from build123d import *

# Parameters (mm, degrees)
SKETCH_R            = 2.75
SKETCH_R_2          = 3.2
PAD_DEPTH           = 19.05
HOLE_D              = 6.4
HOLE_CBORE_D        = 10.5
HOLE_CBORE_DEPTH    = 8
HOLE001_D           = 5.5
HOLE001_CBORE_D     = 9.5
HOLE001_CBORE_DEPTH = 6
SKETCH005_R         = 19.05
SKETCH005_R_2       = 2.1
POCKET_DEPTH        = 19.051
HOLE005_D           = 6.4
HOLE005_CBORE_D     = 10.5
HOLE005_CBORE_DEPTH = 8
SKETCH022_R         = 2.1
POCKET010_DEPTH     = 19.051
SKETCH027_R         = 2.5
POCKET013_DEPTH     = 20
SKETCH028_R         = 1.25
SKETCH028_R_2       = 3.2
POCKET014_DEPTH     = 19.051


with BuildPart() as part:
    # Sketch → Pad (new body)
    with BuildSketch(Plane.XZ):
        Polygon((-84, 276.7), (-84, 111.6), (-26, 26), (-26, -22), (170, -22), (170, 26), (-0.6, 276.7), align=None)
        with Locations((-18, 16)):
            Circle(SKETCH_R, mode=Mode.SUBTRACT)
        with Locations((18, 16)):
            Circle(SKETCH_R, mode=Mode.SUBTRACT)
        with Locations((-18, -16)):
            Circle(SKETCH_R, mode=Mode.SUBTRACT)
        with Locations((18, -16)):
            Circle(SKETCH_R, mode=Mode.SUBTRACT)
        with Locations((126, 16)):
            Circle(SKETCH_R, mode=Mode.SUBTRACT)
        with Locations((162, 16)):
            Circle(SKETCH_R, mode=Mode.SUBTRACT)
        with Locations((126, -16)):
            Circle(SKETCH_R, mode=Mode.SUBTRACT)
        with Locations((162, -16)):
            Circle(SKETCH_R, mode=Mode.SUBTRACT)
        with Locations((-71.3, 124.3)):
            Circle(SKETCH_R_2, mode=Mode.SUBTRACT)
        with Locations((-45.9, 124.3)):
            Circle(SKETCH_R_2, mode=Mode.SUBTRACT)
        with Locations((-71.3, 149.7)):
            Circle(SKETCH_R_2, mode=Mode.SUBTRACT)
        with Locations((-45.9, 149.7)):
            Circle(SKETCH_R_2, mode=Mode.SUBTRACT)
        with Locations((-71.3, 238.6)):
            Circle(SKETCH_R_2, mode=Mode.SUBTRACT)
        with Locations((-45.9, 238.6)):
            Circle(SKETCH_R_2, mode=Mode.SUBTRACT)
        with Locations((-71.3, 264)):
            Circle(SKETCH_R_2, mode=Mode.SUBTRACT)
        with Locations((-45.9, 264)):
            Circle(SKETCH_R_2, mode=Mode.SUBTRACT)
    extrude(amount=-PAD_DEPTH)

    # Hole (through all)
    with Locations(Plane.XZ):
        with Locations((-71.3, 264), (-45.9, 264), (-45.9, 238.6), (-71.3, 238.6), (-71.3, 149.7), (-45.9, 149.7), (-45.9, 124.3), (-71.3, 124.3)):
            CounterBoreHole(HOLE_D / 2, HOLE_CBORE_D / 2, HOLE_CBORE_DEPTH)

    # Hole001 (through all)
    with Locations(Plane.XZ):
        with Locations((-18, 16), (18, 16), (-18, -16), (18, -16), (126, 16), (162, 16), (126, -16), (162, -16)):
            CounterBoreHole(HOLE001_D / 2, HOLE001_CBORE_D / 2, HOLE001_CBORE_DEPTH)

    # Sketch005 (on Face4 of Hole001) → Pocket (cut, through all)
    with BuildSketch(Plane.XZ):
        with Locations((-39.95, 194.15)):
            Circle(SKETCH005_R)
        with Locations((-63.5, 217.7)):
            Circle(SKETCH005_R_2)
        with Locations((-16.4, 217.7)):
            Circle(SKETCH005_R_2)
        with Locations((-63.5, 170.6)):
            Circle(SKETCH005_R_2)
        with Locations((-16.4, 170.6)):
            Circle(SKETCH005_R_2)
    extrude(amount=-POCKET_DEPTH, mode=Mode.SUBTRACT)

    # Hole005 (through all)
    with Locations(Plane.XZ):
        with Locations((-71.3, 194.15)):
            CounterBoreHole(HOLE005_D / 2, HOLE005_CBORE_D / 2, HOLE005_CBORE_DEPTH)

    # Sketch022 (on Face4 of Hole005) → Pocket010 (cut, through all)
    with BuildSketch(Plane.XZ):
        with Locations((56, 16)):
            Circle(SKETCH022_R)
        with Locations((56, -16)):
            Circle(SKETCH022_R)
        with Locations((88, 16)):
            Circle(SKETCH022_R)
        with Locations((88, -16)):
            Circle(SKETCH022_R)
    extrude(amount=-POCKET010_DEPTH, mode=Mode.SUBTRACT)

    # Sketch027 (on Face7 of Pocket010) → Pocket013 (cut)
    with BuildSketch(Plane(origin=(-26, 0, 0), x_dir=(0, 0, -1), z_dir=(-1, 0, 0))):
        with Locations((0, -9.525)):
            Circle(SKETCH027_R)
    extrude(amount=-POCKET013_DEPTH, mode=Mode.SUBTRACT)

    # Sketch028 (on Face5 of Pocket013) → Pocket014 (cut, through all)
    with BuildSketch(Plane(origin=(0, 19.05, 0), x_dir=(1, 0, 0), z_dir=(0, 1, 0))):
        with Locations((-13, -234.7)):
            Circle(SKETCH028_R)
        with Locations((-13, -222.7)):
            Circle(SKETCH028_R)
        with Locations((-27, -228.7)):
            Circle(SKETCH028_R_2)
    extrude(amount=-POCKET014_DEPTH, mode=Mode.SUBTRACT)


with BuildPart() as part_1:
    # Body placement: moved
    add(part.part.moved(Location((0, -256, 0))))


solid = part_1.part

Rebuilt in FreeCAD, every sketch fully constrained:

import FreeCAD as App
import Part
import Sketcher
Q = App.Units.Quantity

doc = App.newDocument("Part")
body = doc.addObject("PartDesign::Body", "Body")

# Sketch on XZ plane
sketch1 = body.newObject("Sketcher::SketchObject", "Sketch")
sketch1.AttachmentSupport = (doc.getObject("XZ_Plane"), [""])
sketch1.MapMode = "FlatFace"
sketch1.addGeometry(Part.LineSegment(App.Vector(-84, 276.7, 0), App.Vector(-84, 111.6, 0)), False)
sketch1.addGeometry(Part.LineSegment(App.Vector(-84, 111.6, 0), App.Vector(-26, 26, 0)), False)
sketch1.addGeometry(Part.LineSegment(App.Vector(-26, 26, 0), App.Vector(-26, -22, 0)), False)
sketch1.addGeometry(Part.LineSegment(App.Vector(-26, -22, 0), App.Vector(170, -22, 0)), False)
sketch1.addGeometry(Part.LineSegment(App.Vector(170, -22, 0), App.Vector(170, 26, 0)), False)
sketch1.addGeometry(Part.LineSegment(App.Vector(170, 26, 0), App.Vector(-0.6, 276.7, 0)), False)
sketch1.addGeometry(Part.LineSegment(App.Vector(-0.6, 276.7, 0), App.Vector(-84, 276.7, 0)), False)
sketch1.addGeometry(Part.Circle(App.Vector(-18, -16, 0), App.Vector(0, 0, 1), 2.8), False)
sketch1.addGeometry(Part.Circle(App.Vector(-18, 16, 0), App.Vector(0, 0, 1), 2.8), False)
sketch1.addGeometry(Part.Circle(App.Vector(18, -16, 0), App.Vector(0, 0, 1), 2.8), False)
sketch1.addGeometry(Part.Circle(App.Vector(18, 16, 0), App.Vector(0, 0, 1), 2.8), False)
sketch1.addGeometry(Part.Circle(App.Vector(126, -16, 0), App.Vector(0, 0, 1), 2.8), False)
sketch1.addGeometry(Part.Circle(App.Vector(126, 16, 0), App.Vector(0, 0, 1), 2.8), False)
sketch1.addGeometry(Part.Circle(App.Vector(162, -16, 0), App.Vector(0, 0, 1), 2.8), False)
sketch1.addGeometry(Part.Circle(App.Vector(162, 16, 0), App.Vector(0, 0, 1), 2.8), False)
sketch1.addGeometry(Part.Circle(App.Vector(-71.3, 124.3, 0), App.Vector(0, 0, 1), 3.2), False)
sketch1.addGeometry(Part.Circle(App.Vector(-45.9, 124.3, 0), App.Vector(0, 0, 1), 3.2), False)
sketch1.addGeometry(Part.Circle(App.Vector(-71.3, 149.7, 0), App.Vector(0, 0, 1), 3.2), False)
sketch1.addGeometry(Part.Circle(App.Vector(-45.9, 149.7, 0), App.Vector(0, 0, 1), 3.2), False)
sketch1.addGeometry(Part.Circle(App.Vector(-71.3, 238.6, 0), App.Vector(0, 0, 1), 3.2), False)
sketch1.addGeometry(Part.Circle(App.Vector(-45.9, 238.6, 0), App.Vector(0, 0, 1), 3.2), False)
sketch1.addGeometry(Part.Circle(App.Vector(-71.3, 264, 0), App.Vector(0, 0, 1), 3.2), False)
sketch1.addGeometry(Part.Circle(App.Vector(-45.9, 264, 0), App.Vector(0, 0, 1), 3.2), False)
sketch1.addConstraint(Sketcher.Constraint("Coincident", 0, 2, 1, 1))
sketch1.addConstraint(Sketcher.Constraint("Coincident", 1, 2, 2, 1))
sketch1.addConstraint(Sketcher.Constraint("Coincident", 2, 2, 3, 1))
sketch1.addConstraint(Sketcher.Constraint("Coincident", 3, 2, 4, 1))
sketch1.addConstraint(Sketcher.Constraint("Coincident", 4, 2, 5, 1))
sketch1.addConstraint(Sketcher.Constraint("Coincident", 5, 2, 6, 1))
sketch1.addConstraint(Sketcher.Constraint("Coincident", 6, 2, 0, 1))
sketch1.addConstraint(Sketcher.Constraint("Vertical", 0))
sketch1.addConstraint(Sketcher.Constraint("Vertical", 2))
sketch1.addConstraint(Sketcher.Constraint("Horizontal", 3))
sketch1.addConstraint(Sketcher.Constraint("Vertical", 4))
sketch1.addConstraint(Sketcher.Constraint("Horizontal", 6))
sketch1.addConstraint(Sketcher.Constraint("Equal", 7, 8))
sketch1.addConstraint(Sketcher.Constraint("Equal", 8, 9))
sketch1.addConstraint(Sketcher.Constraint("Equal", 9, 10))
sketch1.addConstraint(Sketcher.Constraint("Equal", 10, 11))
sketch1.addConstraint(Sketcher.Constraint("Equal", 11, 12))
sketch1.addConstraint(Sketcher.Constraint("Equal", 12, 13))
sketch1.addConstraint(Sketcher.Constraint("Equal", 13, 14))
sketch1.addConstraint(Sketcher.Constraint("Equal", 15, 16))
sketch1.addConstraint(Sketcher.Constraint("Equal", 16, 17))
sketch1.addConstraint(Sketcher.Constraint("Equal", 17, 18))
sketch1.addConstraint(Sketcher.Constraint("Equal", 18, 19))
sketch1.addConstraint(Sketcher.Constraint("Equal", 19, 20))
sketch1.addConstraint(Sketcher.Constraint("Equal", 20, 21))
sketch1.addConstraint(Sketcher.Constraint("Equal", 21, 22))
sketch1.addConstraint(Sketcher.Constraint("Symmetric", 8, 3, 9, 3, -1, 1))
sketch1.addConstraint(Sketcher.Constraint("Symmetric", 7, 3, 10, 3, -1, 1))
sketch1.addConstraint(Sketcher.Constraint("Symmetric", 7, 3, 9, 3, -2))
sketch1.addConstraint(Sketcher.Constraint("Symmetric", 11, 3, 12, 3, -1))
sketch1.addConstraint(Sketcher.Constraint("Symmetric", 13, 3, 14, 3, -1))
sketch1.addConstraint(Sketcher.Constraint("Horizontal", 9, 3, 11, 3))
sketch1.addConstraint(Sketcher.Constraint("Horizontal", 11, 3, 13, 3))
sketch1.addConstraint(Sketcher.Constraint("Horizontal", 15, 3, 16, 3))
sketch1.addConstraint(Sketcher.Constraint("Horizontal", 17, 3, 18, 3))
sketch1.addConstraint(Sketcher.Constraint("Horizontal", 19, 3, 20, 3))
sketch1.addConstraint(Sketcher.Constraint("Horizontal", 21, 3, 22, 3))
sketch1.addConstraint(Sketcher.Constraint("Horizontal", 1, 2, 4, 2))
sketch1.addConstraint(Sketcher.Constraint("Vertical", 15, 3, 17, 3))
sketch1.addConstraint(Sketcher.Constraint("Vertical", 16, 3, 18, 3))
sketch1.addConstraint(Sketcher.Constraint("Vertical", 17, 3, 19, 3))
sketch1.addConstraint(Sketcher.Constraint("Vertical", 18, 3, 20, 3))
sketch1.addConstraint(Sketcher.Constraint("Vertical", 19, 3, 21, 3))
sketch1.addConstraint(Sketcher.Constraint("Vertical", 20, 3, 22, 3))
sketch1.addConstraint(Sketcher.Constraint("Diameter", 7, Q("5.5 mm")))
sketch1.addConstraint(Sketcher.Constraint("Diameter", 15, Q("6.4 mm")))
sketch1.addConstraint(Sketcher.Constraint("DistanceX", 3, 1, 3, 2, Q("196 mm")))
sketch1.addConstraint(Sketcher.Constraint("DistanceY", 2, 2, 2, 1, Q("48 mm")))
sketch1.addConstraint(Sketcher.Constraint("DistanceX", 6, 2, 6, 1, Q("83.4 mm")))
sketch1.addConstraint(Sketcher.Constraint("DistanceY", 0, 2, 0, 1, Q("165.1 mm")))
sketch1.addConstraint(Sketcher.Constraint("DistanceX", 7, 3, -1, 1, Q("18 mm")))
sketch1.addConstraint(Sketcher.Constraint("DistanceY", 7, 3, -1, 1, Q("16 mm")))
sketch1.addConstraint(Sketcher.Constraint("DistanceX", -1, 1, 11, 3, Q("126 mm")))
sketch1.addConstraint(Sketcher.Constraint("DistanceX", -1, 1, 13, 3, Q("162 mm")))
sketch1.addConstraint(Sketcher.Constraint("DistanceY", -1, 1, 21, 3, Q("264 mm")))
sketch1.addConstraint(Sketcher.Constraint("DistanceX", 0, 2, -1, 1, Q("84 mm")))
sketch1.addConstraint(Sketcher.Constraint("DistanceX", 1, 2, -1, 1, Q("26 mm")))
sketch1.addConstraint(Sketcher.Constraint("DistanceY", -1, 1, 1, 2, Q("26 mm")))
sketch1.addConstraint(Sketcher.Constraint("DistanceY", 18, 3, 5, 2, Q("127 mm")))
sketch1.addConstraint(Sketcher.Constraint("DistanceX", 15, 3, -1, 1, Q("71.3 mm")))
sketch1.addConstraint(Sketcher.Constraint("DistanceY", -1, 1, 15, 3, Q("124.3 mm")))
sketch1.addConstraint(Sketcher.Constraint("DistanceX", 16, 3, -1, 1, Q("45.9 mm")))
sketch1.addConstraint(Sketcher.Constraint("DistanceY", -1, 1, 17, 3, Q("149.7 mm")))
sketch1.addConstraint(Sketcher.Constraint("DistanceY", -1, 1, 19, 3, Q("238.6 mm")))
pad1 = body.newObject("PartDesign::Pad", "Pad")
pad1.Profile = sketch1
pad1.Length = 19.05
pad1.Reversed = True

# Sketch on XZ plane
sketch2 = body.newObject("Sketcher::SketchObject", "Sketch001")
sketch2.AttachmentSupport = (doc.getObject("XZ_Plane"), [""])
sketch2.MapMode = "FlatFace"
sketch2.addGeometry(Part.Circle(App.Vector(-71.3, 264, 0), App.Vector(0, 0, 1), 3.2), False)
sketch2.addGeometry(Part.Circle(App.Vector(-45.9, 264, 0), App.Vector(0, 0, 1), 3.2), False)
sketch2.addGeometry(Part.Circle(App.Vector(-45.9, 238.6, 0), App.Vector(0, 0, 1), 3.2), False)
sketch2.addGeometry(Part.Circle(App.Vector(-71.3, 238.6, 0), App.Vector(0, 0, 1), 3.2), False)
sketch2.addGeometry(Part.Circle(App.Vector(-71.3, 149.7, 0), App.Vector(0, 0, 1), 3.2), False)
sketch2.addGeometry(Part.Circle(App.Vector(-45.9, 149.7, 0), App.Vector(0, 0, 1), 3.2), False)
sketch2.addGeometry(Part.Circle(App.Vector(-45.9, 124.3, 0), App.Vector(0, 0, 1), 3.2), False)
sketch2.addGeometry(Part.Circle(App.Vector(-71.3, 124.3, 0), App.Vector(0, 0, 1), 3.2), False)
sketch2.addConstraint(Sketcher.Constraint("Equal", 0, 1))
sketch2.addConstraint(Sketcher.Constraint("Equal", 1, 2))
sketch2.addConstraint(Sketcher.Constraint("Equal", 2, 3))
sketch2.addConstraint(Sketcher.Constraint("Equal", 3, 4))
sketch2.addConstraint(Sketcher.Constraint("Equal", 4, 5))
sketch2.addConstraint(Sketcher.Constraint("Equal", 5, 6))
sketch2.addConstraint(Sketcher.Constraint("Equal", 6, 7))
sketch2.addConstraint(Sketcher.Constraint("Horizontal", 0, 3, 1, 3))
sketch2.addConstraint(Sketcher.Constraint("Horizontal", 2, 3, 3, 3))
sketch2.addConstraint(Sketcher.Constraint("Horizontal", 4, 3, 5, 3))
sketch2.addConstraint(Sketcher.Constraint("Horizontal", 6, 3, 7, 3))
sketch2.addConstraint(Sketcher.Constraint("Vertical", 1, 3, 2, 3))
sketch2.addConstraint(Sketcher.Constraint("Vertical", 0, 3, 3, 3))
sketch2.addConstraint(Sketcher.Constraint("Vertical", 3, 3, 4, 3))
sketch2.addConstraint(Sketcher.Constraint("Vertical", 2, 3, 5, 3))
sketch2.addConstraint(Sketcher.Constraint("Vertical", 5, 3, 6, 3))
sketch2.addConstraint(Sketcher.Constraint("Vertical", 4, 3, 7, 3))
sketch2.addConstraint(Sketcher.Constraint("Diameter", 0, Q("6.4 mm")))
sketch2.addConstraint(Sketcher.Constraint("DistanceY", -1, 1, 0, 3, Q("264 mm")))
sketch2.addConstraint(Sketcher.Constraint("DistanceX", 0, 3, -1, 1, Q("71.3 mm")))
sketch2.addConstraint(Sketcher.Constraint("DistanceX", 1, 3, -1, 1, Q("45.9 mm")))
sketch2.addConstraint(Sketcher.Constraint("DistanceY", -1, 1, 2, 3, Q("238.6 mm")))
sketch2.addConstraint(Sketcher.Constraint("DistanceY", -1, 1, 4, 3, Q("149.7 mm")))
sketch2.addConstraint(Sketcher.Constraint("DistanceY", -1, 1, 6, 3, Q("124.3 mm")))
doc.recompute()
hole = body.newObject("PartDesign::Hole", "Hole")
hole.Profile = sketch2
hole.ThreadType = "None"
hole.Diameter = 6.4
hole.DepthType = "ThroughAll"
hole.HoleCutType = "Counterbore"
hole.HoleCutDiameter = 10.5
hole.HoleCutDepth = 8

# Sketch on XZ plane
sketch3 = body.newObject("Sketcher::SketchObject", "Sketch002")
sketch3.AttachmentSupport = (doc.getObject("XZ_Plane"), [""])
sketch3.MapMode = "FlatFace"
sketch3.addGeometry(Part.Circle(App.Vector(-18, 16, 0), App.Vector(0, 0, 1), 2.8), False)
sketch3.addGeometry(Part.Circle(App.Vector(18, 16, 0), App.Vector(0, 0, 1), 2.8), False)
sketch3.addGeometry(Part.Circle(App.Vector(-18, -16, 0), App.Vector(0, 0, 1), 2.8), False)
sketch3.addGeometry(Part.Circle(App.Vector(18, -16, 0), App.Vector(0, 0, 1), 2.8), False)
sketch3.addGeometry(Part.Circle(App.Vector(126, 16, 0), App.Vector(0, 0, 1), 2.8), False)
sketch3.addGeometry(Part.Circle(App.Vector(162, 16, 0), App.Vector(0, 0, 1), 2.8), False)
sketch3.addGeometry(Part.Circle(App.Vector(126, -16, 0), App.Vector(0, 0, 1), 2.8), False)
sketch3.addGeometry(Part.Circle(App.Vector(162, -16, 0), App.Vector(0, 0, 1), 2.8), False)
sketch3.addConstraint(Sketcher.Constraint("Equal", 0, 1))
sketch3.addConstraint(Sketcher.Constraint("Equal", 1, 2))
sketch3.addConstraint(Sketcher.Constraint("Equal", 2, 3))
sketch3.addConstraint(Sketcher.Constraint("Equal", 3, 4))
sketch3.addConstraint(Sketcher.Constraint("Equal", 4, 5))
sketch3.addConstraint(Sketcher.Constraint("Equal", 5, 6))
sketch3.addConstraint(Sketcher.Constraint("Equal", 6, 7))
sketch3.addConstraint(Sketcher.Constraint("Symmetric", 1, 3, 2, 3, -1, 1))
sketch3.addConstraint(Sketcher.Constraint("Symmetric", 0, 3, 3, 3, -1, 1))
sketch3.addConstraint(Sketcher.Constraint("Symmetric", 0, 3, 1, 3, -2))
sketch3.addConstraint(Sketcher.Constraint("Symmetric", 4, 3, 6, 3, -1))
sketch3.addConstraint(Sketcher.Constraint("Symmetric", 5, 3, 7, 3, -1))
sketch3.addConstraint(Sketcher.Constraint("Horizontal", 1, 3, 4, 3))
sketch3.addConstraint(Sketcher.Constraint("Horizontal", 4, 3, 5, 3))
sketch3.addConstraint(Sketcher.Constraint("Diameter", 0, Q("5.5 mm")))
sketch3.addConstraint(Sketcher.Constraint("DistanceX", 0, 3, -1, 1, Q("18 mm")))
sketch3.addConstraint(Sketcher.Constraint("DistanceY", -1, 1, 0, 3, Q("16 mm")))
sketch3.addConstraint(Sketcher.Constraint("DistanceX", -1, 1, 4, 3, Q("126 mm")))
sketch3.addConstraint(Sketcher.Constraint("DistanceX", -1, 1, 5, 3, Q("162 mm")))
doc.recompute()
hole2 = body.newObject("PartDesign::Hole", "Hole001")
hole2.Profile = sketch3
hole2.ThreadType = "None"
hole2.Diameter = 5.5
hole2.DepthType = "ThroughAll"
hole2.HoleCutType = "Counterbore"
hole2.HoleCutDiameter = 9.5
hole2.HoleCutDepth = 6

# Sketch on XZ plane
sketch4 = body.newObject("Sketcher::SketchObject", "Sketch003")
sketch4.AttachmentSupport = (doc.getObject("XZ_Plane"), [""])
sketch4.MapMode = "FlatFace"
sketch4.addGeometry(Part.Circle(App.Vector(-40, 194.2, 0), App.Vector(0, 0, 1), 19.1), False)
sketch4.addGeometry(Part.Circle(App.Vector(-63.5, 217.7, 0), App.Vector(0, 0, 1), 2.1), False)
sketch4.addGeometry(Part.Circle(App.Vector(-16.4, 217.7, 0), App.Vector(0, 0, 1), 2.1), False)
sketch4.addGeometry(Part.Circle(App.Vector(-63.5, 170.6, 0), App.Vector(0, 0, 1), 2.1), False)
sketch4.addGeometry(Part.Circle(App.Vector(-16.4, 170.6, 0), App.Vector(0, 0, 1), 2.1), False)
sketch4.addConstraint(Sketcher.Constraint("Equal", 1, 2))
sketch4.addConstraint(Sketcher.Constraint("Equal", 2, 3))
sketch4.addConstraint(Sketcher.Constraint("Equal", 3, 4))
sketch4.addConstraint(Sketcher.Constraint("Horizontal", 1, 3, 2, 3))
sketch4.addConstraint(Sketcher.Constraint("Horizontal", 3, 3, 4, 3))
sketch4.addConstraint(Sketcher.Constraint("Vertical", 1, 3, 3, 3))
sketch4.addConstraint(Sketcher.Constraint("Vertical", 2, 3, 4, 3))
sketch4.addConstraint(Sketcher.Constraint("Diameter", 0, Q("38.1 mm")))
sketch4.addConstraint(Sketcher.Constraint("Diameter", 1, Q("4.2 mm")))
sketch4.addConstraint(Sketcher.Constraint("DistanceX", 1, 3, -1, 1, Q("63.5 mm")))
sketch4.addConstraint(Sketcher.Constraint("DistanceY", -1, 1, 1, 3, Q("217.7 mm")))
sketch4.addConstraint(Sketcher.Constraint("DistanceX", 2, 3, -1, 1, Q("16.4 mm")))
sketch4.addConstraint(Sketcher.Constraint("DistanceY", -1, 1, 3, 3, Q("170.6 mm")))
sketch4.addConstraint(Sketcher.Constraint("DistanceX", 0, 3, -1, 1, Q("39.95 mm")))
sketch4.addConstraint(Sketcher.Constraint("DistanceY", -1, 1, 0, 3, Q("194.15 mm")))
pocket1 = body.newObject("PartDesign::Pocket", "Pocket")
pocket1.Profile = sketch4
pocket1.Type = "ThroughAll"

# Sketch on XZ plane
sketch5 = body.newObject("Sketcher::SketchObject", "Sketch004")
sketch5.AttachmentSupport = (doc.getObject("XZ_Plane"), [""])
sketch5.MapMode = "FlatFace"
sketch5.addGeometry(Part.Circle(App.Vector(-71.3, 194.2, 0), App.Vector(0, 0, 1), 3.2), False)
sketch5.addConstraint(Sketcher.Constraint("Diameter", 0, Q("6.4 mm")))
sketch5.addConstraint(Sketcher.Constraint("DistanceX", 0, 3, -1, 1, Q("71.3 mm")))
sketch5.addConstraint(Sketcher.Constraint("DistanceY", -1, 1, 0, 3, Q("194.15 mm")))
doc.recompute()
hole3 = body.newObject("PartDesign::Hole", "Hole002")
hole3.Profile = sketch5
hole3.ThreadType = "None"
hole3.Diameter = 6.4
hole3.DepthType = "ThroughAll"
hole3.HoleCutType = "Counterbore"
hole3.HoleCutDiameter = 10.5
hole3.HoleCutDepth = 8

# Sketch on XZ plane
sketch6 = body.newObject("Sketcher::SketchObject", "Sketch005")
sketch6.AttachmentSupport = (doc.getObject("XZ_Plane"), [""])
sketch6.MapMode = "FlatFace"
sketch6.addGeometry(Part.Circle(App.Vector(56, 16, 0), App.Vector(0, 0, 1), 2.1), False)
sketch6.addGeometry(Part.Circle(App.Vector(56, -16, 0), App.Vector(0, 0, 1), 2.1), False)
sketch6.addGeometry(Part.Circle(App.Vector(88, 16, 0), App.Vector(0, 0, 1), 2.1), False)
sketch6.addGeometry(Part.Circle(App.Vector(88, -16, 0), App.Vector(0, 0, 1), 2.1), False)
sketch6.addConstraint(Sketcher.Constraint("Equal", 0, 1))
sketch6.addConstraint(Sketcher.Constraint("Equal", 1, 2))
sketch6.addConstraint(Sketcher.Constraint("Equal", 2, 3))
sketch6.addConstraint(Sketcher.Constraint("Symmetric", 0, 3, 1, 3, -1))
sketch6.addConstraint(Sketcher.Constraint("Symmetric", 2, 3, 3, 3, -1))
sketch6.addConstraint(Sketcher.Constraint("Horizontal", 0, 3, 2, 3))
sketch6.addConstraint(Sketcher.Constraint("Diameter", 0, Q("4.2 mm")))
sketch6.addConstraint(Sketcher.Constraint("DistanceX", -1, 1, 0, 3, Q("56 mm")))
sketch6.addConstraint(Sketcher.Constraint("DistanceY", -1, 1, 0, 3, Q("16 mm")))
sketch6.addConstraint(Sketcher.Constraint("DistanceX", -1, 1, 2, 3, Q("88 mm")))
pocket2 = body.newObject("PartDesign::Pocket", "Pocket001")
pocket2.Profile = sketch6
pocket2.Type = "ThroughAll"

# Sketch on YZ plane
sketch7 = body.newObject("Sketcher::SketchObject", "Sketch006")
sketch7.AttachmentSupport = (doc.getObject("YZ_Plane"), [""])
sketch7.MapMode = "FlatFace"
sketch7.AttachmentOffset = App.Placement(App.Vector(0, 0, -26), App.Rotation())
sketch7.addGeometry(Part.Circle(App.Vector(9.5, 0, 0), App.Vector(0, 0, 1), 2.5), False)
sketch7.addConstraint(Sketcher.Constraint("PointOnObject", 0, 3, -1))
sketch7.addConstraint(Sketcher.Constraint("Diameter", 0, Q("5 mm")))
sketch7.addConstraint(Sketcher.Constraint("DistanceX", -1, 1, 0, 3, Q("9.525 mm")))
pocket3 = body.newObject("PartDesign::Pocket", "Pocket002")
pocket3.Profile = sketch7
pocket3.Length = 20
pocket3.Reversed = True

# Sketch on XZ plane
sketch8 = body.newObject("Sketcher::SketchObject", "Sketch007")
sketch8.AttachmentSupport = (doc.getObject("XZ_Plane"), [""])
sketch8.MapMode = "FlatFace"
sketch8.AttachmentOffset = App.Placement(App.Vector(0, 0, -19.05), App.Rotation())
sketch8.addGeometry(Part.Circle(App.Vector(-13, 234.7, 0), App.Vector(0, 0, 1), 1.2), False)
sketch8.addGeometry(Part.Circle(App.Vector(-13, 222.7, 0), App.Vector(0, 0, 1), 1.2), False)
sketch8.addGeometry(Part.Circle(App.Vector(-27, 228.7, 0), App.Vector(0, 0, 1), 3.2), False)
sketch8.addConstraint(Sketcher.Constraint("Equal", 0, 1))
sketch8.addConstraint(Sketcher.Constraint("Vertical", 0, 3, 1, 3))
sketch8.addConstraint(Sketcher.Constraint("Diameter", 0, Q("2.5 mm")))
sketch8.addConstraint(Sketcher.Constraint("Diameter", 2, Q("6.4 mm")))
sketch8.addConstraint(Sketcher.Constraint("DistanceX", 0, 3, -1, 1, Q("13 mm")))
sketch8.addConstraint(Sketcher.Constraint("DistanceX", 2, 3, -1, 1, Q("27 mm")))
sketch8.addConstraint(Sketcher.Constraint("DistanceY", 1, 3, 0, 3, Q("12 mm")))
sketch8.addConstraint(Sketcher.Constraint("DistanceY", 2, 3, 0, 3, Q("6 mm")))
sketch8.addConstraint(Sketcher.Constraint("DistanceY", -1, 1, 0, 3, Q("234.7 mm")))
pocket4 = body.newObject("PartDesign::Pocket", "Pocket003")
pocket4.Profile = sketch8
pocket4.Type = "ThroughAll"
pocket4.Reversed = True
body2 = doc.addObject("PartDesign::Body", "Body001")
doc.recompute()

body.Placement = App.Placement(App.Vector(0, -256, 0), App.Rotation(App.Vector(0, 0, 1), 0))
boolean = body2.newObject("PartDesign::Boolean", "Boolean")
boolean.Type = "Fuse"
boolean.addObjects([body])

doc.recompute()
